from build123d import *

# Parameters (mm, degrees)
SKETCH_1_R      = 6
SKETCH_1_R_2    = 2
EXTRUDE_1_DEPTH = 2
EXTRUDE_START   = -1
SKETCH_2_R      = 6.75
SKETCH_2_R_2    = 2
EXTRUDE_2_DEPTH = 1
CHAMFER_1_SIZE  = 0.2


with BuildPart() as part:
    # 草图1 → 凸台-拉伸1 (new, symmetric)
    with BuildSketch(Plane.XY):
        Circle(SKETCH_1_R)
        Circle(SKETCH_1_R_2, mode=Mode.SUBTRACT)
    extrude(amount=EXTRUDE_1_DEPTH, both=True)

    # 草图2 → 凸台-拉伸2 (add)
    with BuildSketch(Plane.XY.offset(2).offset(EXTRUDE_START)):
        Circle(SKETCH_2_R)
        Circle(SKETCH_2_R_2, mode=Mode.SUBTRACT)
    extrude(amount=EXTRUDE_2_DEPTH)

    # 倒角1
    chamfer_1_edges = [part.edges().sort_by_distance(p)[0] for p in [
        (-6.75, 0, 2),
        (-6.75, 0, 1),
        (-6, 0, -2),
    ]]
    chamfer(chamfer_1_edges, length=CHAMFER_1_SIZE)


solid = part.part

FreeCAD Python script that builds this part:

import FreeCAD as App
import Part
import Sketcher

V = App.Vector


def edges_at(feature, points):
    """Names of the edges that pass closest to the given points."""
    edges = feature.Shape.Edges
    near = lambda p: min(range(len(edges)), key=lambda i: edges[i].distToShape(Part.Vertex(*p))[0])
    return sorted({f"Edge{near(p) + 1}" for p in points})

doc = App.newDocument("Part")
body = doc.addObject("PartDesign::Body", "Body")

sketch1 = doc.addObject("Sketcher::SketchObject", "Sketch")
body.addObject(sketch1)
sketch1.AttachmentSupport = (doc.XY_Plane, [""])
sketch1.MapMode = "FlatFace"
sketch1.addGeometry([
    Part.Circle(V(0, 0, 0), V(0, 0, 1), 6),
    Part.Circle(V(0, 0, 0), V(0, 0, 1), 2),
], False)
sketch1.addConstraint([
    Sketcher.Constraint("Coincident", 0, 3, -1, 1),
    Sketcher.Constraint("Coincident", 1, 3, -1, 1),
    Sketcher.Constraint("Diameter", 0, 12.0),
    Sketcher.Constraint("Diameter", 1, 4.0),
])
pad1 = doc.addObject("PartDesign::Pad", "Pad")
body.addObject(pad1)
pad1.Profile = sketch1
pad1.Length = 4
pad1.Midplane = True

sketch2 = doc.addObject("Sketcher::SketchObject", "Sketch001")
body.addObject(sketch2)
sketch2.AttachmentSupport = (doc.XY_Plane, [""])
sketch2.MapMode = "FlatFace"
sketch2.AttachmentOffset = App.Placement(V(0, 0, 1), App.Rotation())
sketch2.addGeometry([
    Part.Circle(V(0, 0, 0), V(0, 0, 1), 6.75),
    Part.Circle(V(0, 0, 0), V(0, 0, 1), 2),
], False)
sketch2.addConstraint([
    Sketcher.Constraint("Coincident", 0, 3, -1, 1),
    Sketcher.Constraint("Coincident", 1, 3, -1, 1),
    Sketcher.Constraint("Diameter", 1, 4.0),
    Sketcher.Constraint("Diameter", 0, 13.5),
])
pad2 = doc.addObject("PartDesign::Pad", "Pad001")
body.addObject(pad2)
pad2.Profile = sketch2
pad2.Length = 1
doc.recompute()

chamfer = doc.addObject("PartDesign::Chamfer", "Chamfer")
body.addObject(chamfer)
chamfer.Base = (pad2, edges_at(pad2, [(-6.75, 0, 2), (-6.75, 0, 1), (-6, 0, -2)]))
chamfer.Size = 0.2

doc.recompute()
